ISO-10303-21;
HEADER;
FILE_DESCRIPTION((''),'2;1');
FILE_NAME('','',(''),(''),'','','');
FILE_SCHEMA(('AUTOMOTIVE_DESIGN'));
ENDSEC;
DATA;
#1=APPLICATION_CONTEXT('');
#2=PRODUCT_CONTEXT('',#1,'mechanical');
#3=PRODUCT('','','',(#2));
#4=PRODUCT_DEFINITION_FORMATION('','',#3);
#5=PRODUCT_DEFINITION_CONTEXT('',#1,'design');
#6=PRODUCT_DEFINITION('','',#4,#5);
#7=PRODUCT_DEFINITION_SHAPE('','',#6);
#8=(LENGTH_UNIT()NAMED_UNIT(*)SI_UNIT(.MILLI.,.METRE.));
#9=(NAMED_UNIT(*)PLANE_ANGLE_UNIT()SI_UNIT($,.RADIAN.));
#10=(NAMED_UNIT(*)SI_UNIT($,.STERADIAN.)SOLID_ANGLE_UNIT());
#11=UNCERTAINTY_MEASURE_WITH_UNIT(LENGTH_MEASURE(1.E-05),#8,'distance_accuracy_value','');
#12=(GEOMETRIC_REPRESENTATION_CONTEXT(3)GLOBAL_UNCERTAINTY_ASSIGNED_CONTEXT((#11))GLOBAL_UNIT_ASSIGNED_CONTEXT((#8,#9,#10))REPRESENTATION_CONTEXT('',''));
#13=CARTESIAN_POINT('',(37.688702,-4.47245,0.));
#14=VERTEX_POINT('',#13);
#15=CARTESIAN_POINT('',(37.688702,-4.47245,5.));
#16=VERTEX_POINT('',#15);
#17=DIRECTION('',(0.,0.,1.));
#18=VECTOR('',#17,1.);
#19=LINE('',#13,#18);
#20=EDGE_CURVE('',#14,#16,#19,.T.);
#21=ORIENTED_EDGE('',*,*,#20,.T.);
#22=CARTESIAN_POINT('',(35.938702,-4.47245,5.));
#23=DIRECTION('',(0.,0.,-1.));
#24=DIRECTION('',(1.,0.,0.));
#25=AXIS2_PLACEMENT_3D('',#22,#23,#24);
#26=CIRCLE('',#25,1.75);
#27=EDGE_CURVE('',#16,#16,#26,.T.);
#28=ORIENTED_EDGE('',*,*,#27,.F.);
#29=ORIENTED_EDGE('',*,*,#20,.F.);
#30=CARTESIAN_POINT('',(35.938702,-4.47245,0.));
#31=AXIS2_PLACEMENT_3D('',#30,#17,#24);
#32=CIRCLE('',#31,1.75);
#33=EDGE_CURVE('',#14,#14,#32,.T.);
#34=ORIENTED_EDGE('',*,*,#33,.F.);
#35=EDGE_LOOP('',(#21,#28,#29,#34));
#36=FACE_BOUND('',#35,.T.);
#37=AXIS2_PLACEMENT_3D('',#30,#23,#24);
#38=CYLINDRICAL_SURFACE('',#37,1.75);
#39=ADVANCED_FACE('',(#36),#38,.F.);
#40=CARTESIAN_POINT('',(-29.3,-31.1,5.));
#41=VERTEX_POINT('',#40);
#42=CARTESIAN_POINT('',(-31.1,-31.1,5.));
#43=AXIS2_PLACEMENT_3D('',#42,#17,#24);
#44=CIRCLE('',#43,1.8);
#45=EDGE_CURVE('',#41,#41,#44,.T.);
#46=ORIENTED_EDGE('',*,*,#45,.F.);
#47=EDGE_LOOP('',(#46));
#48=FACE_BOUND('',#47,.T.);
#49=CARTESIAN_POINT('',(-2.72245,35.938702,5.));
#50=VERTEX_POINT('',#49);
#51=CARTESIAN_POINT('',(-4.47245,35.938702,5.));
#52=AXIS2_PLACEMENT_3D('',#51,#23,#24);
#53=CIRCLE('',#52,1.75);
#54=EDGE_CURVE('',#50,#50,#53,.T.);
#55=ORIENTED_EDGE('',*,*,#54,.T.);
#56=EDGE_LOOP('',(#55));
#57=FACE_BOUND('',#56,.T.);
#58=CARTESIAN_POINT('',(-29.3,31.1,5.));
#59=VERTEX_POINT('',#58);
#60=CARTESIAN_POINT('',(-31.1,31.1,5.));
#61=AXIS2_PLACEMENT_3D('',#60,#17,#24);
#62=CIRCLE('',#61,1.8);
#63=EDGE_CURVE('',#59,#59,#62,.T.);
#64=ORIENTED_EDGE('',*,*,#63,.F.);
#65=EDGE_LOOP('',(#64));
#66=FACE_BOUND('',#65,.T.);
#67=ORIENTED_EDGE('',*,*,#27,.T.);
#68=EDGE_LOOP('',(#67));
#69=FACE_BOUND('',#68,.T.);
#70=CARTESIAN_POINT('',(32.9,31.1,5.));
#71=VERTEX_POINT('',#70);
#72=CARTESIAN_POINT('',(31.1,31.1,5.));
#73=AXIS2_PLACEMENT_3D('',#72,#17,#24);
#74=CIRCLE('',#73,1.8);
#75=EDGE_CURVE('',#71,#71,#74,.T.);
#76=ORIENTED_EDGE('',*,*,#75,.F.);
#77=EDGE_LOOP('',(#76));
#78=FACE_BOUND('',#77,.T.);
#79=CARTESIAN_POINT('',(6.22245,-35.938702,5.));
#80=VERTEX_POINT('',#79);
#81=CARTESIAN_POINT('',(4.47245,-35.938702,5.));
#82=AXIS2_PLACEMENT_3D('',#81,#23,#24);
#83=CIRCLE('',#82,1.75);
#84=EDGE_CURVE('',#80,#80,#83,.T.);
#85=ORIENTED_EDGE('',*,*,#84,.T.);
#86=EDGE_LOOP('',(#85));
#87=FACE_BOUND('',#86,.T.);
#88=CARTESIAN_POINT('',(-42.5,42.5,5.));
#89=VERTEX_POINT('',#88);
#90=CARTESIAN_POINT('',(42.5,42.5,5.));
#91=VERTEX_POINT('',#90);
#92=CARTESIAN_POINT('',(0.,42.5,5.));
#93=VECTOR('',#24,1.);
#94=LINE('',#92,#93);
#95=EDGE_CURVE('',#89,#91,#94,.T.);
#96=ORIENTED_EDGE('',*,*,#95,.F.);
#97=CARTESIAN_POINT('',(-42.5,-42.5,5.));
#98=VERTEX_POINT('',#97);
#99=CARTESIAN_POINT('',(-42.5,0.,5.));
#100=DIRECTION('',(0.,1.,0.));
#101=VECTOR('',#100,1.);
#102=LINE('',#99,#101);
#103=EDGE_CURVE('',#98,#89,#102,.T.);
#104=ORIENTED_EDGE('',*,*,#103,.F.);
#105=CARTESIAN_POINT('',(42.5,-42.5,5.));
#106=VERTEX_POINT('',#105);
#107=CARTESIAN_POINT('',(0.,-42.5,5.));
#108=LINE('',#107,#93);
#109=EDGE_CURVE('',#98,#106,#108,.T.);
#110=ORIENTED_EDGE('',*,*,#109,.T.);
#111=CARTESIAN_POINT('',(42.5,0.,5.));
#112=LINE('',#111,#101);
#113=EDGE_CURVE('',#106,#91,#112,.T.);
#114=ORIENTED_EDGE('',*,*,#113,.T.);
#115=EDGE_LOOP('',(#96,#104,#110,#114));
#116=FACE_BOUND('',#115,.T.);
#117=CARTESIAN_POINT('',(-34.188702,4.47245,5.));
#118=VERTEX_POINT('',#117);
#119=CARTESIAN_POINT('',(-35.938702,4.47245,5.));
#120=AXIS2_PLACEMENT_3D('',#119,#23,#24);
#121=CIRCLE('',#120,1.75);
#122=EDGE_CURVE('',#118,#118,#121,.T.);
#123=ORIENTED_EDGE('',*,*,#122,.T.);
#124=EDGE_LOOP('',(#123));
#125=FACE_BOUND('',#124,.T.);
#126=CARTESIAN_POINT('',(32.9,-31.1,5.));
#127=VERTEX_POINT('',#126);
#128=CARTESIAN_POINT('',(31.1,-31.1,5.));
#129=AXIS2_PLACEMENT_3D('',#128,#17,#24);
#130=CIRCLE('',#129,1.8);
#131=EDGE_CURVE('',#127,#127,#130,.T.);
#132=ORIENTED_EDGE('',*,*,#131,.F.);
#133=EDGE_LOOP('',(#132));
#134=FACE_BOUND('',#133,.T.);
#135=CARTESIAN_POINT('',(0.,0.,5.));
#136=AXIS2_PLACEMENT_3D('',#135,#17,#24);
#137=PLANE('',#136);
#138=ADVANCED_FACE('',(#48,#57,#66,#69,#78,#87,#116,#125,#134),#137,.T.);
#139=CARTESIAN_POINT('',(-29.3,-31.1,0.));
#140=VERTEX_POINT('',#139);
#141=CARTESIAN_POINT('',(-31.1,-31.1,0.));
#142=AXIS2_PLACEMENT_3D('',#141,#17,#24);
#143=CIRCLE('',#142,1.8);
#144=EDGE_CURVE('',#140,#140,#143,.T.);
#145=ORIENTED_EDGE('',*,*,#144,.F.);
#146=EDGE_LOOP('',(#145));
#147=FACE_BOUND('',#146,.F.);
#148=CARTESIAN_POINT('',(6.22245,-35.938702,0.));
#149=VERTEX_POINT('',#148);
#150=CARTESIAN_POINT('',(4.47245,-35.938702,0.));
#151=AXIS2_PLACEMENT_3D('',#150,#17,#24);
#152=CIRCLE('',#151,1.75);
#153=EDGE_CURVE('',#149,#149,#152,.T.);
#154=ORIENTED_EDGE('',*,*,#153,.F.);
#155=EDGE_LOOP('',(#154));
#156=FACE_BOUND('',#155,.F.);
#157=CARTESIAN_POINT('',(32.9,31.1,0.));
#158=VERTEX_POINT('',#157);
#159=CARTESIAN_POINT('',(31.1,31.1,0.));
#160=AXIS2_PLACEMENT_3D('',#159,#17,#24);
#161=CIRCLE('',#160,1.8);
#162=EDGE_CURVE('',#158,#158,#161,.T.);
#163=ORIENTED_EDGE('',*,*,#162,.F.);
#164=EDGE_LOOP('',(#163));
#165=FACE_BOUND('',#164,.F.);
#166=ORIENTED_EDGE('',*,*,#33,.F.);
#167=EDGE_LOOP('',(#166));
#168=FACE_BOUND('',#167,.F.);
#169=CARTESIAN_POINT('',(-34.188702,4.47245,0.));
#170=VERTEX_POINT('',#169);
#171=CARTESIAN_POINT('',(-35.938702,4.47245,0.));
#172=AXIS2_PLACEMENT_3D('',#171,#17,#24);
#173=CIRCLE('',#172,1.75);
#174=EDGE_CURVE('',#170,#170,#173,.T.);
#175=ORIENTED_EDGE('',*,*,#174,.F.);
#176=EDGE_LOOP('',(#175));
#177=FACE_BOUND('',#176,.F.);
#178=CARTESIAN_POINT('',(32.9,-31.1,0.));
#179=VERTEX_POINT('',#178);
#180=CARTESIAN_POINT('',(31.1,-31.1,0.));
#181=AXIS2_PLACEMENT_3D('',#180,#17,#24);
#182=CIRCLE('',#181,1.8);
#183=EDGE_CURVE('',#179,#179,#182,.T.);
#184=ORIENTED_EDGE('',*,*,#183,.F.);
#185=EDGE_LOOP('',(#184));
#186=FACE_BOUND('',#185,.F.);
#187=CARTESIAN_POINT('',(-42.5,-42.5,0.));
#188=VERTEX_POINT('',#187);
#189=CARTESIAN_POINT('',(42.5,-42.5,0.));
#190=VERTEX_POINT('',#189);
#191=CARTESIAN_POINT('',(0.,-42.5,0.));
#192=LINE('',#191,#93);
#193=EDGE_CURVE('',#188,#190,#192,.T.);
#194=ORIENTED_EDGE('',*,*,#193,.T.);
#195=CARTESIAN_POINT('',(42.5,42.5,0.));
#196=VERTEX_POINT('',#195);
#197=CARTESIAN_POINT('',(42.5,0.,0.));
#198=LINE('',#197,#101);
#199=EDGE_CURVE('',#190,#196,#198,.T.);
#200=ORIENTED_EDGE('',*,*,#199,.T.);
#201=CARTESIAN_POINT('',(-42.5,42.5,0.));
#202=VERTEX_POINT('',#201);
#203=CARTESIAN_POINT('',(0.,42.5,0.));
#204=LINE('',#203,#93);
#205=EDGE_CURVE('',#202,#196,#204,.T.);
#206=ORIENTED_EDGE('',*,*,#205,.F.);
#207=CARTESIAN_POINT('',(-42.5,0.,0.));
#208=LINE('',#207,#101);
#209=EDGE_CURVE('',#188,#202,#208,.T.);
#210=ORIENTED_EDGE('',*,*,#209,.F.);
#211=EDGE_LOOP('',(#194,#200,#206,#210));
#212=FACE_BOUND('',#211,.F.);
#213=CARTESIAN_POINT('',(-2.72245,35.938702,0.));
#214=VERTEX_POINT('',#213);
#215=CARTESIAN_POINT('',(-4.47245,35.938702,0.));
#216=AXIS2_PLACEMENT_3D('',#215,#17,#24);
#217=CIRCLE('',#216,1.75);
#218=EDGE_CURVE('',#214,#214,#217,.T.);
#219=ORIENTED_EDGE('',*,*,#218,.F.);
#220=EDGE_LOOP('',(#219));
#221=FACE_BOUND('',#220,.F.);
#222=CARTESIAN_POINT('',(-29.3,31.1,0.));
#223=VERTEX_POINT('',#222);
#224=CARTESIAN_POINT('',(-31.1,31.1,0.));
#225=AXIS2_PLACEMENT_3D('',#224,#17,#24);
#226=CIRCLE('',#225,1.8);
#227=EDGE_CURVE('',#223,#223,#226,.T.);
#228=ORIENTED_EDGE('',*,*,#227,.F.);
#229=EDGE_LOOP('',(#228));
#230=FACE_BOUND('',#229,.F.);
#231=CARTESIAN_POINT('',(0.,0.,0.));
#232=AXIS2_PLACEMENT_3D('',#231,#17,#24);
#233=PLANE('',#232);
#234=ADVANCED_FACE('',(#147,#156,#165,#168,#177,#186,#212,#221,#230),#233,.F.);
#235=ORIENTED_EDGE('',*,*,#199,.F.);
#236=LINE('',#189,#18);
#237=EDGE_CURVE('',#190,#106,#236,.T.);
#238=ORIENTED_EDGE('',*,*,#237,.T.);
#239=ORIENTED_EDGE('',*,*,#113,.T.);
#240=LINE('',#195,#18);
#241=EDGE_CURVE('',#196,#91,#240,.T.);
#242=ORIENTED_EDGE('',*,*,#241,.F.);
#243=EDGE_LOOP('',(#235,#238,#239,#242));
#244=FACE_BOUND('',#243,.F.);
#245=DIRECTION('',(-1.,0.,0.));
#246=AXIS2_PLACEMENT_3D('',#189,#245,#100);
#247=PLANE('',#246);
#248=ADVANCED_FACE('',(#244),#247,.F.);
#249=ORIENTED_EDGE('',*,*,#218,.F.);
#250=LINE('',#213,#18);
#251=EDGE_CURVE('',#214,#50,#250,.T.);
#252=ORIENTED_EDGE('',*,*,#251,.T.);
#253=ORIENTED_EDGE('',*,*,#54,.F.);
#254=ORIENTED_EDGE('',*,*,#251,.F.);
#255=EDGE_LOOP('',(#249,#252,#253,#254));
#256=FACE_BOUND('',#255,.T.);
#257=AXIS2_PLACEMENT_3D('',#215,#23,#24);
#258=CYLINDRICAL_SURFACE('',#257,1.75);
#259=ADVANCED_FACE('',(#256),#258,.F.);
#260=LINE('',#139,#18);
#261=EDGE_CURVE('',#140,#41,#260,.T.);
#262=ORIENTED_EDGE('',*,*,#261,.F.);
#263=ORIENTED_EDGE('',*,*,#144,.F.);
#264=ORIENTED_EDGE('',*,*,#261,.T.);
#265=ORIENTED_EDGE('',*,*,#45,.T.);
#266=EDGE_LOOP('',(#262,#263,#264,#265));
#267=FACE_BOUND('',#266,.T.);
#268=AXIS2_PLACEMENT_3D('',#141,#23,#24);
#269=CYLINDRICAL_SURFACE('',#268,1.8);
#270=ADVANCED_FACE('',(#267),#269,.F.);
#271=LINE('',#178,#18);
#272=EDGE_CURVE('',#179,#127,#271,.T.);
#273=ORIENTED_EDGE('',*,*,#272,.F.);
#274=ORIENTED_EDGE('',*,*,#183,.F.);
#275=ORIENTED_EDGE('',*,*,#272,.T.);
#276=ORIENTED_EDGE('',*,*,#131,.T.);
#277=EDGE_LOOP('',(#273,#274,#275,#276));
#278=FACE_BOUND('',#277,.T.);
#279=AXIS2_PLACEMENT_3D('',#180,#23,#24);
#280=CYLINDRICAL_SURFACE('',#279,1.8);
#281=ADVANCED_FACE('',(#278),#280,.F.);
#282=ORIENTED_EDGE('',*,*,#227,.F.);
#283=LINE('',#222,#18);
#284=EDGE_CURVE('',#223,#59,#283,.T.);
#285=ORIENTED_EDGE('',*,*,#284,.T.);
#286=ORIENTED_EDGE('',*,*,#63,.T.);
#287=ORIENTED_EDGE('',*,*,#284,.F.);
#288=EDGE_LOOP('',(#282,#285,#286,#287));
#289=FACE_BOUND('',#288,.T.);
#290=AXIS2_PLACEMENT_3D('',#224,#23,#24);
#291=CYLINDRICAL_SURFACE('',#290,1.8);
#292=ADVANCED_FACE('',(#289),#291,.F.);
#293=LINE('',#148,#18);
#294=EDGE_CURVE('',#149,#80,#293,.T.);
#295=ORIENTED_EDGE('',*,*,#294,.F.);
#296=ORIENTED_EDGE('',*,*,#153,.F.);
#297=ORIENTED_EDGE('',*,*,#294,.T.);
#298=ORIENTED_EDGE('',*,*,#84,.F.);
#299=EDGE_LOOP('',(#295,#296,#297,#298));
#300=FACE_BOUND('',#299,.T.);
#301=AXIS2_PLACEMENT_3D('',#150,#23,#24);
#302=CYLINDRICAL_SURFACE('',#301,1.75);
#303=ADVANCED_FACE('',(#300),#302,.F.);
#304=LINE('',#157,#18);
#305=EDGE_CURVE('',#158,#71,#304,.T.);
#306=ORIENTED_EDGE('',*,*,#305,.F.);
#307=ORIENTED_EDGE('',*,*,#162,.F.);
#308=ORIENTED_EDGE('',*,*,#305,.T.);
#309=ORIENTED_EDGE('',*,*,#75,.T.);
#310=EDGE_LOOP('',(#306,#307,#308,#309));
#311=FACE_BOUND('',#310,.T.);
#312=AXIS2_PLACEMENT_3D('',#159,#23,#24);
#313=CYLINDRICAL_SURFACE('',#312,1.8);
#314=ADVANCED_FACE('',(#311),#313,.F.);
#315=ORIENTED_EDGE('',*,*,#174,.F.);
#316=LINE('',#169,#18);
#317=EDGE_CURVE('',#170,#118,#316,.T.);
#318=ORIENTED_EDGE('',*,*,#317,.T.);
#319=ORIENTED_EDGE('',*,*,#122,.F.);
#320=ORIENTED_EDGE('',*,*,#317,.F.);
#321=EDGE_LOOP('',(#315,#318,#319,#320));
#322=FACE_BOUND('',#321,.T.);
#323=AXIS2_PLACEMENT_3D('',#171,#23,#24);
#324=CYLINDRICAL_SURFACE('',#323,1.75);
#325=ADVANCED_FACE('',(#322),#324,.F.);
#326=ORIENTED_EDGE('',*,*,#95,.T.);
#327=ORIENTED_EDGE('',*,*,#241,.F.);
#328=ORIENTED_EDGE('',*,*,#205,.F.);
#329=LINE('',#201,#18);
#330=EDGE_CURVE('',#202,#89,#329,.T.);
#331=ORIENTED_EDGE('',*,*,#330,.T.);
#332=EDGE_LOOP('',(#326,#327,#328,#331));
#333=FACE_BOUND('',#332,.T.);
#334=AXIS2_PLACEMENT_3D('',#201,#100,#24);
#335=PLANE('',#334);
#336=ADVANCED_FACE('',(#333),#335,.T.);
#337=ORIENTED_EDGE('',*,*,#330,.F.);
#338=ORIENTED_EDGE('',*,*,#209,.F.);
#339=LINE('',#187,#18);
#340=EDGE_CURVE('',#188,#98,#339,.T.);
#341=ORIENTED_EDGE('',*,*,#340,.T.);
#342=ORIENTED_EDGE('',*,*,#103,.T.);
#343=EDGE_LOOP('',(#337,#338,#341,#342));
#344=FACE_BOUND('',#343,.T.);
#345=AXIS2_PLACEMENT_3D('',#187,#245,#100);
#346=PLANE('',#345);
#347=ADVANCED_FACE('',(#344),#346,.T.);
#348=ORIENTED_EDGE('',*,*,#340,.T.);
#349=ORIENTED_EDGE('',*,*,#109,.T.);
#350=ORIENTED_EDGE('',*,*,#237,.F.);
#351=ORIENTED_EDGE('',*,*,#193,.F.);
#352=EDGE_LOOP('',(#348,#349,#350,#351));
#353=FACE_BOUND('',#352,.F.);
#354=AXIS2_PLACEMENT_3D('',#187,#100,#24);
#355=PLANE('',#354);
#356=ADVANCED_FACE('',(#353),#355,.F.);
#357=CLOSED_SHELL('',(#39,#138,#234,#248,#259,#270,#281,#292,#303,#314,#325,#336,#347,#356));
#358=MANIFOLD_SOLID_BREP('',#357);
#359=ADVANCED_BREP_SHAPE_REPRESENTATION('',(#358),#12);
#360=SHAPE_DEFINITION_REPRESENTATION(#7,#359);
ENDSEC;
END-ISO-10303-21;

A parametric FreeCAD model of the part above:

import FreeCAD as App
import Part
import Sketcher
from FreeCAD import Vector
Q = App.Units.Quantity

doc = App.newDocument("Part")
params = doc.addObject("Spreadsheet::Sheet", "Params")
for row, (alias, value) in enumerate([
    ("sketch1_diameter", "3.6 mm"),
    ("sketch1_width", "85 mm"),
    ("pad1_length", "5 mm"),
    ("sketch2_diameter", "3.5 mm"),
    ("pocket1_length", "10 mm"),
], start=1):
    params.set(f"A{row}", alias)
    params.set(f"B{row}", "=" + value)
    params.setAlias(f"B{row}", alias)

body = doc.addObject("PartDesign::Body", "Body")

# Sketch on XY plane
sketch1 = body.newObject("Sketcher::SketchObject", "Sketch")
sketch1.AttachmentSupport = (doc.getObject("XY_Plane"), [""])
sketch1.MapMode = "FlatFace"
sketch1.addGeometry(Part.LineSegment(Vector(-42.5, 42.5, 0), Vector(-42.5, -42.5, 0)), False)
sketch1.addGeometry(Part.LineSegment(Vector(-42.5, -42.5, 0), Vector(42.5, -42.5, 0)), False)
sketch1.addGeometry(Part.LineSegment(Vector(42.5, -42.5, 0), Vector(42.5, 42.5, 0)), False)
sketch1.addGeometry(Part.LineSegment(Vector(42.5, 42.5, 0), Vector(-42.5, 42.5, 0)), False)
sketch1.addGeometry(Part.Circle(Vector(-31.1, -31.1, 0), Vector(0, 0, 1), 1.8), False)
sketch1.addGeometry(Part.Circle(Vector(31.1, -31.1, 0), Vector(0, 0, 1), 1.8), False)
sketch1.addGeometry(Part.Circle(Vector(-31.1, 31.1, 0), Vector(0, 0, 1), 1.8), False)
sketch1.addGeometry(Part.Circle(Vector(31.1, 31.1, 0), Vector(0, 0, 1), 1.8), False)
sketch1.addConstraint(Sketcher.Constraint("Coincident", 0, 2, 1, 1))
sketch1.addConstraint(Sketcher.Constraint("Coincident", 1, 2, 2, 1))
sketch1.addConstraint(Sketcher.Constraint("Coincident", 2, 2, 3, 1))
sketch1.addConstraint(Sketcher.Constraint("Coincident", 3, 2, 0, 1))
sketch1.addConstraint(Sketcher.Constraint("Vertical", 0))
sketch1.addConstraint(Sketcher.Constraint("Horizontal", 1))
sketch1.addConstraint(Sketcher.Constraint("Vertical", 2))
sketch1.addConstraint(Sketcher.Constraint("Horizontal", 3))
sketch1.addConstraint(Sketcher.Constraint("Equal", 4, 5))
sketch1.addConstraint(Sketcher.Constraint("Equal", 5, 6))
sketch1.addConstraint(Sketcher.Constraint("Equal", 6, 7))
sketch1.addConstraint(Sketcher.Constraint("Symmetric", 5, 3, 6, 3, -1, 1))
sketch1.addConstraint(Sketcher.Constraint("Symmetric", 4, 3, 7, 3, -1, 1))
sketch1.addConstraint(Sketcher.Constraint("Symmetric", 0, 2, 2, 2, -1, 1))
sketch1.addConstraint(Sketcher.Constraint("Symmetric", 4, 3, 5, 3, -2))
sketch1.addConstraint(Sketcher.Constraint("Equal", 3, 0))
sketch1.addConstraint(Sketcher.Constraint("Diameter", 4, Q("3.6 mm")))
sketch1.addConstraint(Sketcher.Constraint("DistanceX", 1, 1, 1, 2, Q("85 mm")))
sketch1.addConstraint(Sketcher.Constraint("DistanceX", 4, 3, -1, 1, Q("31.1 mm")))
sketch1.addConstraint(Sketcher.Constraint("DistanceY", 4, 3, -1, 1, Q("31.1 mm")))
sketch1.setExpression("Constraints[16]", "Params.sketch1_diameter")
sketch1.setExpression("Constraints[17]", "Params.sketch1_width")
pad1 = body.newObject("PartDesign::Pad", "Pad")
pad1.Profile = sketch1
pad1.setExpression("Length", "Params.pad1_length")

# Sketch on XY plane
sketch2 = body.newObject("Sketcher::SketchObject", "Sketch001")
sketch2.AttachmentSupport = (doc.getObject("XY_Plane"), [""])
sketch2.MapMode = "FlatFace"
sketch2.addGeometry(Part.Circle(Vector(-4.5, 35.9, 0), Vector(0, 0, 1), 1.8), False)
sketch2.addGeometry(Part.Circle(Vector(35.9, -4.5, 0), Vector(0, 0, 1), 1.8), False)
sketch2.addGeometry(Part.Circle(Vector(4.5, -35.9, 0), Vector(0, 0, 1), 1.8), False)
sketch2.addGeometry(Part.Circle(Vector(-35.9, 4.5, 0), Vector(0, 0, 1), 1.8), False)
sketch2.addConstraint(Sketcher.Constraint("Equal", 0, 1))
sketch2.addConstraint(Sketcher.Constraint("Equal", 1, 2))
sketch2.addConstraint(Sketcher.Constraint("Equal", 2, 3))
sketch2.addConstraint(Sketcher.Constraint("Symmetric", 0, 3, 2, 3, -1, 1))
sketch2.addConstraint(Sketcher.Constraint("Symmetric", 1, 3, 3, 3, -1, 1))
sketch2.addConstraint(Sketcher.Constraint("Diameter", 0, Q("3.5 mm")))
sketch2.addConstraint(Sketcher.Constraint("DistanceX", 0, 3, 2, 3, Q("8.9449 mm")))
sketch2.addConstraint(Sketcher.Constraint("DistanceY", 1, 3, 3, 3, Q("8.9449 mm")))
sketch2.addConstraint(Sketcher.Constraint("DistanceX", 2, 3, 1, 3, Q("31.466252 mm")))
sketch2.addConstraint(Sketcher.Constraint("DistanceY", 2, 3, 1, 3, Q("31.466252 mm")))
sketch2.setExpression("Constraints[5]", "Params.sketch2_diameter")
pocket1 = body.newObject("PartDesign::Pocket", "Pocket")
pocket1.Profile = sketch2
pocket1.setExpression("Length", "Params.pocket1_length")
pocket1.Reversed = True

doc.recompute()
